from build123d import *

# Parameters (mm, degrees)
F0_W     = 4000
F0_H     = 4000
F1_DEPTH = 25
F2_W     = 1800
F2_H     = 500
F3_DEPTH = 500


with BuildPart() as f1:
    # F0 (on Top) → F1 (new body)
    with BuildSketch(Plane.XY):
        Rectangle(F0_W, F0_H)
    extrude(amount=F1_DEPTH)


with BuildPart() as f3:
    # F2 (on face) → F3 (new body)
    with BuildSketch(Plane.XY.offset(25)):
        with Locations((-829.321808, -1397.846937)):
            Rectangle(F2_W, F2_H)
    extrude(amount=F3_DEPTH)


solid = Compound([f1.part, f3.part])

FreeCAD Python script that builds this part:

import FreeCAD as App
import Part
import Sketcher
Q = App.Units.Quantity

doc = App.newDocument("Part")
body = doc.addObject("PartDesign::Body", "Body")

# Sketch on XY plane
sketch1 = body.newObject("Sketcher::SketchObject", "Sketch")
sketch1.AttachmentSupport = (doc.getObject("XY_Plane"), [""])
sketch1.MapMode = "FlatFace"
sketch1.addGeometry(Part.LineSegment(App.Vector(-2000, 2000, 0), App.Vector(-2000, -2000, 0)), False)
sketch1.addGeometry(Part.LineSegment(App.Vector(-2000, -2000, 0), App.Vector(2000, -2000, 0)), False)
sketch1.addGeometry(Part.LineSegment(App.Vector(2000, -2000, 0), App.Vector(2000, 2000, 0)), False)
sketch1.addGeometry(Part.LineSegment(App.Vector(2000, 2000, 0), App.Vector(-2000, 2000, 0)), False)
sketch1.addConstraint(Sketcher.Constraint("Coincident", 0, 2, 1, 1))
sketch1.addConstraint(Sketcher.Constraint("Coincident", 1, 2, 2, 1))
sketch1.addConstraint(Sketcher.Constraint("Coincident", 2, 2, 3, 1))
sketch1.addConstraint(Sketcher.Constraint("Coincident", 3, 2, 0, 1))
sketch1.addConstraint(Sketcher.Constraint("Vertical", 0))
sketch1.addConstraint(Sketcher.Constraint("Horizontal", 1))
sketch1.addConstraint(Sketcher.Constraint("Vertical", 2))
sketch1.addConstraint(Sketcher.Constraint("Horizontal", 3))
sketch1.addConstraint(Sketcher.Constraint("Symmetric", 0, 2, 2, 2, -1, 1))
sketch1.addConstraint(Sketcher.Constraint("Equal", 3, 0))
sketch1.addConstraint(Sketcher.Constraint("DistanceX", 1, 1, 1, 2, Q("4000 mm")))
pad1 = body.newObject("PartDesign::Pad", "Pad")
pad1.Profile = sketch1
pad1.Length = 25
body2 = doc.addObject("PartDesign::Body", "Body001")

# Sketch on XY plane
sketch2 = body2.newObject("Sketcher::SketchObject", "Sketch001")
sketch2.AttachmentSupport = (doc.getObject("XY_Plane001"), [""])
sketch2.MapMode = "FlatFace"
sketch2.AttachmentOffset = App.Placement(App.Vector(0, 0, 25), App.Rotation())
sketch2.addGeometry(Part.LineSegment(App.Vector(-1729, -1148, 0), App.Vector(-1729, -1648, 0)), False)
sketch2.addGeometry(Part.LineSegment(App.Vector(-1729, -1648, 0), App.Vector(71, -1648, 0)), False)
sketch2.addGeometry(Part.LineSegment(App.Vector(71, -1648, 0), App.Vector(71, -1148, 0)), False)
sketch2.addGeometry(Part.LineSegment(App.Vector(71, -1148, 0), App.Vector(-1729, -1148, 0)), False)
sketch2.addConstraint(Sketcher.Constraint("Coincident", 0, 2, 1, 1))
sketch2.addConstraint(Sketcher.Constraint("Coincident", 1, 2, 2, 1))
sketch2.addConstraint(Sketcher.Constraint("Coincident", 2, 2, 3, 1))
sketch2.addConstraint(Sketcher.Constraint("Coincident", 3, 2, 0, 1))
sketch2.addConstraint(Sketcher.Constraint("Vertical", 0))
sketch2.addConstraint(Sketcher.Constraint("Horizontal", 1))
sketch2.addConstraint(Sketcher.Constraint("Vertical", 2))
sketch2.addConstraint(Sketcher.Constraint("Horizontal", 3))
sketch2.addConstraint(Sketcher.Constraint("DistanceX", 1, 1, 1, 2, Q("1800 mm")))
sketch2.addConstraint(Sketcher.Constraint("DistanceY", 0, 2, 0, 1, Q("500 mm")))
sketch2.addConstraint(Sketcher.Constraint("DistanceX", 0, 2, -1, 1, Q("1729.321808 mm")))
sketch2.addConstraint(Sketcher.Constraint("DistanceY", 0, 2, -1, 1, Q("1647.846937 mm")))
pad2 = body2.newObject("PartDesign::Pad", "Pad001")
pad2.Profile = sketch2
pad2.Length = 500

doc.recompute()
